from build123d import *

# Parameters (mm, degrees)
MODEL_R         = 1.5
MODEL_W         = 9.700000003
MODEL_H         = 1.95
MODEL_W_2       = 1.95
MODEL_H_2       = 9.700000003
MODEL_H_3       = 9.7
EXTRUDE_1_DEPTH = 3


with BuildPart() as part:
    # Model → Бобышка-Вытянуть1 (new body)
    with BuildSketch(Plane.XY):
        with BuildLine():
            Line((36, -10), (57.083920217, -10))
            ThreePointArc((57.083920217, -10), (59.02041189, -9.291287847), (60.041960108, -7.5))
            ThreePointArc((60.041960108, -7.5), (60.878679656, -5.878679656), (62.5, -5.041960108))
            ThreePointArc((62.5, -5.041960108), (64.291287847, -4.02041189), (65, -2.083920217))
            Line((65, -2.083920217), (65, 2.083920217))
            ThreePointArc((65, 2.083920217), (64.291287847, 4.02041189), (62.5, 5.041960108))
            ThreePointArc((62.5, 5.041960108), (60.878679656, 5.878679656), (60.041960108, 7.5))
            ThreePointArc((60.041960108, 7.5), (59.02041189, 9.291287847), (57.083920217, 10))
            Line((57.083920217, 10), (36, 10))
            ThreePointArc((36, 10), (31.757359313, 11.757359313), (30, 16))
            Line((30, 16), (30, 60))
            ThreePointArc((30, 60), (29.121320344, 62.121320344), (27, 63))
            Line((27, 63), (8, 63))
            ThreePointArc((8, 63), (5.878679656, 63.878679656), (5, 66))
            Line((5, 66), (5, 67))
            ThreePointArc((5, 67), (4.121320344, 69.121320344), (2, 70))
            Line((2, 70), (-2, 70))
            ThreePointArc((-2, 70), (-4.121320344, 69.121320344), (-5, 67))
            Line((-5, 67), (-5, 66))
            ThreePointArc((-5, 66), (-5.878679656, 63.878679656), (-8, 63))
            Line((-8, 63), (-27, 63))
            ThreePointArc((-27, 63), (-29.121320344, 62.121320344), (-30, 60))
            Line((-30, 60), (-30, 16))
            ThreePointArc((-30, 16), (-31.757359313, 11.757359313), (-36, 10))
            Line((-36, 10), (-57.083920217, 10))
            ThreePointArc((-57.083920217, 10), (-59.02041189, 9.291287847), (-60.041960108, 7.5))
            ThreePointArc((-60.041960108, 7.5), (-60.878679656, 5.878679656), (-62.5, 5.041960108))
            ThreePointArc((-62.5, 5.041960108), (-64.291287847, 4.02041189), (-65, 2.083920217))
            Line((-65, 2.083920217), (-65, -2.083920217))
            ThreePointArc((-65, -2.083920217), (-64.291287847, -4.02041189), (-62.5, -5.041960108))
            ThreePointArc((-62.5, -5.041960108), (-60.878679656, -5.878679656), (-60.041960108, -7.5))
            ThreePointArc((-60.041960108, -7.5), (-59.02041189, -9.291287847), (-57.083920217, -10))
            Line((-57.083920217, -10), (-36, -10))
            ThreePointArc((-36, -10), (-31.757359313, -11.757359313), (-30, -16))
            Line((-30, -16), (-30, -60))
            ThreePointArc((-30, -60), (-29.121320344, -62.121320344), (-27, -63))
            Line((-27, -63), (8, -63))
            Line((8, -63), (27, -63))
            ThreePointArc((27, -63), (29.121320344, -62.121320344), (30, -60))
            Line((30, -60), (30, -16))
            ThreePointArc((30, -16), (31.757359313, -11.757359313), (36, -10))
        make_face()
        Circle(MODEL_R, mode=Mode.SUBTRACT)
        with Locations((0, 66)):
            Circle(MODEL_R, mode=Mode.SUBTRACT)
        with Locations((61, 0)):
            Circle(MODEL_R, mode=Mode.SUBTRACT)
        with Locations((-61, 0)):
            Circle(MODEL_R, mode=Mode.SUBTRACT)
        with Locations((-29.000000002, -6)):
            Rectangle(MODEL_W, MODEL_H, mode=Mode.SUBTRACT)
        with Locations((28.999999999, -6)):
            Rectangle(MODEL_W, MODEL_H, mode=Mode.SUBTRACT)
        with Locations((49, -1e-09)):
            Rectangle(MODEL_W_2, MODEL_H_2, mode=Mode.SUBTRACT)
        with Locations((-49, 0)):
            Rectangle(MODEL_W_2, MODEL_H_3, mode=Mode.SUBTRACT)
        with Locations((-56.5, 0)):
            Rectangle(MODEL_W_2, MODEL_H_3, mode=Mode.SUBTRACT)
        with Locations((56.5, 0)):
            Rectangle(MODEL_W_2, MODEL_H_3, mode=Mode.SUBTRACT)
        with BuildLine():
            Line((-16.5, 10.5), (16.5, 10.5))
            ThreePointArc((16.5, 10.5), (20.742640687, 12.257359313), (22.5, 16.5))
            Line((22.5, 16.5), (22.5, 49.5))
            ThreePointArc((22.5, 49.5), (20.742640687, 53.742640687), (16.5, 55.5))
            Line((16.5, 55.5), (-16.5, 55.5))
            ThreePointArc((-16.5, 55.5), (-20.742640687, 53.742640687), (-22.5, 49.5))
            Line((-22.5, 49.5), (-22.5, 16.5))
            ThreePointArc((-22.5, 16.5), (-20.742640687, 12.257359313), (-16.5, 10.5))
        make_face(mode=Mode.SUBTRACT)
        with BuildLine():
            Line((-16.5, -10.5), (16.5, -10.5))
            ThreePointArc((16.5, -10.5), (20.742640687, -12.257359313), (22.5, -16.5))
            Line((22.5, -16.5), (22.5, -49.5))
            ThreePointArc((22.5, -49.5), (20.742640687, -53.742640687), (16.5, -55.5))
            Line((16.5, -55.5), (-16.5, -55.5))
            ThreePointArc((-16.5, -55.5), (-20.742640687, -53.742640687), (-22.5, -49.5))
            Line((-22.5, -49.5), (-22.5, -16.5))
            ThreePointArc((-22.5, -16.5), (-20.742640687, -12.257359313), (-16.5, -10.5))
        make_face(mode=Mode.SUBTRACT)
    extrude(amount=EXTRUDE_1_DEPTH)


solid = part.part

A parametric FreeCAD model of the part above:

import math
import FreeCAD as App
import Part
import Sketcher
Q = App.Units.Quantity

doc = App.newDocument("Part")
body = doc.addObject("PartDesign::Body", "Body")

sketch1 = body.newObject("Sketcher::SketchObject", "Sketch")
sketch1.AttachmentSupport = (doc.getObject("XY_Plane"), [""])
sketch1.MapMode = "FlatFace"
sketch1.addGeometry([
    Part.LineSegment(App.Vector(36, -10, 0), App.Vector(57.1, -10, 0)),
    Part.ArcOfCircle(Part.Circle(App.Vector(57.1, -7, 0), App.Vector(0, 0, 1), 3), math.radians(-90), math.radians(-10)),
    Part.ArcOfCircle(Part.Circle(App.Vector(63, -8, 0), App.Vector(0, 0, 1), 3), math.radians(100), math.radians(170)),
    Part.ArcOfCircle(Part.Circle(App.Vector(62, -2.1, 0), App.Vector(0, 0, 1), 3), math.radians(-80), math.radians(0)),
    Part.LineSegment(App.Vector(65, -2.1, 0), App.Vector(65, 2.1, 0)),
    Part.ArcOfCircle(Part.Circle(App.Vector(62, 2.1, 0), App.Vector(0, 0, 1), 3), math.radians(0), math.radians(80)),
    Part.ArcOfCircle(Part.Circle(App.Vector(63, 8, 0), App.Vector(0, 0, 1), 3), math.radians(-170), math.radians(-100)),
    Part.ArcOfCircle(Part.Circle(App.Vector(57.1, 7, 0), App.Vector(0, 0, 1), 3), math.radians(10), math.radians(90)),
    Part.LineSegment(App.Vector(57.1, 10, 0), App.Vector(36, 10, 0)),
    Part.ArcOfCircle(Part.Circle(App.Vector(36, 16, 0), App.Vector(0, 0, 1), 6), math.radians(180), math.radians(270)),
    Part.LineSegment(App.Vector(30, 16, 0), App.Vector(30, 60, 0)),
    Part.ArcOfCircle(Part.Circle(App.Vector(27, 60, 0), App.Vector(0, 0, 1), 3), math.radians(0), math.radians(90)),
    Part.LineSegment(App.Vector(27, 63, 0), App.Vector(8, 63, 0)),
    Part.ArcOfCircle(Part.Circle(App.Vector(8, 66, 0), App.Vector(0, 0, 1), 3), math.radians(180), math.radians(270)),
    Part.LineSegment(App.Vector(5, 66, 0), App.Vector(5, 67, 0)),
    Part.ArcOfCircle(Part.Circle(App.Vector(2, 67, 0), App.Vector(0, 0, 1), 3), math.radians(0), math.radians(90)),
    Part.LineSegment(App.Vector(2, 70, 0), App.Vector(-2, 70, 0)),
    Part.ArcOfCircle(Part.Circle(App.Vector(-2, 67, 0), App.Vector(0, 0, 1), 3), math.radians(90), math.radians(180)),
    Part.LineSegment(App.Vector(-5, 67, 0), App.Vector(-5, 66, 0)),
    Part.ArcOfCircle(Part.Circle(App.Vector(-8, 66, 0), App.Vector(0, 0, 1), 3), math.radians(-90), math.radians(0)),
    Part.LineSegment(App.Vector(-8, 63, 0), App.Vector(-27, 63, 0)),
    Part.ArcOfCircle(Part.Circle(App.Vector(-27, 60, 0), App.Vector(0, 0, 1), 3), math.radians(90), math.radians(180)),
    Part.LineSegment(App.Vector(-30, 60, 0), App.Vector(-30, 16, 0)),
    Part.ArcOfCircle(Part.Circle(App.Vector(-36, 16, 0), App.Vector(0, 0, 1), 6), math.radians(-90), math.radians(0)),
    Part.LineSegment(App.Vector(-36, 10, 0), App.Vector(-57.1, 10, 0)),
    Part.ArcOfCircle(Part.Circle(App.Vector(-57.1, 7, 0), App.Vector(0, 0, 1), 3), math.radians(90), math.radians(170)),
    Part.ArcOfCircle(Part.Circle(App.Vector(-63, 8, 0), App.Vector(0, 0, 1), 3), math.radians(-80), math.radians(-10)),
    Part.ArcOfCircle(Part.Circle(App.Vector(-62, 2.1, 0), App.Vector(0, 0, 1), 3), math.radians(100), math.radians(180)),
    Part.LineSegment(App.Vector(-65, 2.1, 0), App.Vector(-65, -2.1, 0)),
    Part.ArcOfCircle(Part.Circle(App.Vector(-62, -2.1, 0), App.Vector(0, 0, 1), 3), math.radians(-180), math.radians(-100)),
    Part.ArcOfCircle(Part.Circle(App.Vector(-63, -8, 0), App.Vector(0, 0, 1), 3), math.radians(10), math.radians(80)),
    Part.ArcOfCircle(Part.Circle(App.Vector(-57.1, -7, 0), App.Vector(0, 0, 1), 3), math.radians(-170), math.radians(-90)),
    Part.LineSegment(App.Vector(-57.1, -10, 0), App.Vector(-36, -10, 0)),
    Part.ArcOfCircle(Part.Circle(App.Vector(-36, -16, 0), App.Vector(0, 0, 1), 6), math.radians(0), math.radians(90)),
    Part.LineSegment(App.Vector(-30, -16, 0), App.Vector(-30, -60, 0)),
    Part.ArcOfCircle(Part.Circle(App.Vector(-27, -60, 0), App.Vector(0, 0, 1), 3), math.radians(180), math.radians(270)),
    Part.LineSegment(App.Vector(-27, -63, 0), App.Vector(27, -63, 0)),
    Part.ArcOfCircle(Part.Circle(App.Vector(27, -60, 0), App.Vector(0, 0, 1), 3), math.radians(-90), math.radians(0)),
    Part.LineSegment(App.Vector(30, -60, 0), App.Vector(30, -16, 0)),
    Part.ArcOfCircle(Part.Circle(App.Vector(36, -16, 0), App.Vector(0, 0, 1), 6), math.radians(90), math.radians(180)),
    Part.Circle(App.Vector(-61, 0, 0), App.Vector(0, 0, 1), 1.5),
    Part.LineSegment(App.Vector(-55.5, -4.8, 0), App.Vector(-57.5, -4.8, 0)),
    Part.LineSegment(App.Vector(-57.5, -4.8, 0), App.Vector(-57.5, 4.8, 0)),
    Part.LineSegment(App.Vector(-57.5, 4.8, 0), App.Vector(-55.5, 4.8, 0)),
    Part.LineSegment(App.Vector(-55.5, 4.8, 0), App.Vector(-55.5, -4.8, 0)),
    Part.LineSegment(App.Vector(-48, -4.8, 0), App.Vector(-50, -4.8, 0)),
    Part.LineSegment(App.Vector(-50, -4.8, 0), App.Vector(-50, 4.8, 0)),
    Part.LineSegment(App.Vector(-50, 4.8, 0), App.Vector(-48, 4.8, 0)),
    Part.LineSegment(App.Vector(-48, 4.8, 0), App.Vector(-48, -4.8, 0)),
    Part.LineSegment(App.Vector(-24.2, -7, 0), App.Vector(-33.9, -7, 0)),
    Part.LineSegment(App.Vector(-33.9, -7, 0), App.Vector(-33.9, -5, 0)),
    Part.LineSegment(App.Vector(-33.9, -5, 0), App.Vector(-24.2, -5, 0)),
    Part.LineSegment(App.Vector(-24.2, -5, 0), App.Vector(-24.2, -7, 0)),
    Part.ArcOfCircle(Part.Circle(App.Vector(-16.5, -16.5, 0), App.Vector(0, 0, 1), 6), math.radians(90), math.radians(180)),
    Part.LineSegment(App.Vector(-16.5, -10.5, 0), App.Vector(16.5, -10.5, 0)),
    Part.ArcOfCircle(Part.Circle(App.Vector(16.5, -16.5, 0), App.Vector(0, 0, 1), 6), math.radians(0), math.radians(90)),
    Part.LineSegment(App.Vector(22.5, -16.5, 0), App.Vector(22.5, -49.5, 0)),
    Part.ArcOfCircle(Part.Circle(App.Vector(16.5, -49.5, 0), App.Vector(0, 0, 1), 6), math.radians(-90), math.radians(0)),
    Part.LineSegment(App.Vector(16.5, -55.5, 0), App.Vector(-16.5, -55.5, 0)),
    Part.ArcOfCircle(Part.Circle(App.Vector(-16.5, -49.5, 0), App.Vector(0, 0, 1), 6), math.radians(180), math.radians(270)),
    Part.LineSegment(App.Vector(-22.5, -49.5, 0), App.Vector(-22.5, -16.5, 0)),
    Part.Circle(App.Vector(0, 0, 0), App.Vector(0, 0, 1), 1.5),
    Part.LineSegment(App.Vector(33.9, -7, 0), App.Vector(24.1, -7, 0)),
    Part.LineSegment(App.Vector(24.1, -7, 0), App.Vector(24.1, -5, 0)),
    Part.LineSegment(App.Vector(24.1, -5, 0), App.Vector(33.9, -5, 0)),
    Part.LineSegment(App.Vector(33.9, -5, 0), App.Vector(33.9, -7, 0)),
    Part.LineSegment(App.Vector(50, -4.9, 0), App.Vector(48, -4.9, 0)),
    Part.LineSegment(App.Vector(48, -4.9, 0), App.Vector(48, 4.8, 0)),
    Part.LineSegment(App.Vector(48, 4.8, 0), App.Vector(50, 4.8, 0)),
    Part.LineSegment(App.Vector(50, 4.8, 0), App.Vector(50, -4.9, 0)),
    Part.LineSegment(App.Vector(57.5, -4.8, 0), App.Vector(55.5, -4.8, 0)),
    Part.LineSegment(App.Vector(55.5, -4.8, 0), App.Vector(55.5, 4.8, 0)),
    Part.LineSegment(App.Vector(55.5, 4.8, 0), App.Vector(57.5, 4.8, 0)),
    Part.LineSegment(App.Vector(57.5, 4.8, 0), App.Vector(57.5, -4.8, 0)),
    Part.Circle(App.Vector(61, 0, 0), App.Vector(0, 0, 1), 1.5),
    Part.LineSegment(App.Vector(16.5, 10.5, 0), App.Vector(-16.5, 10.5, 0)),
    Part.ArcOfCircle(Part.Circle(App.Vector(-16.5, 16.5, 0), App.Vector(0, 0, 1), 6), math.radians(180), math.radians(270)),
    Part.LineSegment(App.Vector(-22.5, 16.5, 0), App.Vector(-22.5, 49.5, 0)),
    Part.ArcOfCircle(Part.Circle(App.Vector(-16.5, 49.5, 0), App.Vector(0, 0, 1), 6), math.radians(90), math.radians(180)),
    Part.LineSegment(App.Vector(-16.5, 55.5, 0), App.Vector(16.5, 55.5, 0)),
    Part.ArcOfCircle(Part.Circle(App.Vector(16.5, 49.5, 0), App.Vector(0, 0, 1), 6), math.radians(0), math.radians(90)),
    Part.LineSegment(App.Vector(22.5, 49.5, 0), App.Vector(22.5, 16.5, 0)),
    Part.ArcOfCircle(Part.Circle(App.Vector(16.5, 16.5, 0), App.Vector(0, 0, 1), 6), math.radians(-90), math.radians(0)),
    Part.Circle(App.Vector(0, 66, 0), App.Vector(0, 0, 1), 1.5),
], False)
sketch1.addConstraint([
    Sketcher.Constraint("Tangent", 0, 2, 1, 1),
    Sketcher.Constraint("Tangent", 1, 2, 2, 2),
    Sketcher.Constraint("Tangent", 2, 1, 3, 1),
    Sketcher.Constraint("Tangent", 3, 2, 4, 1),
    Sketcher.Constraint("Tangent", 4, 2, 5, 1),
    Sketcher.Constraint("Tangent", 5, 2, 6, 2),
    Sketcher.Constraint("Tangent", 6, 1, 7, 1),
    Sketcher.Constraint("Tangent", 7, 2, 8, 1),
    Sketcher.Constraint("Tangent", 8, 2, 9, 2),
    Sketcher.Constraint("Tangent", 9, 1, 10, 1),
    Sketcher.Constraint("Tangent", 10, 2, 11, 1),
    Sketcher.Constraint("Tangent", 11, 2, 12, 1),
    Sketcher.Constraint("Tangent", 12, 2, 13, 2),
    Sketcher.Constraint("Tangent", 13, 1, 14, 1),
    Sketcher.Constraint("Tangent", 14, 2, 15, 1),
    Sketcher.Constraint("Tangent", 15, 2, 16, 1),
    Sketcher.Constraint("Tangent", 16, 2, 17, 1),
    Sketcher.Constraint("Tangent", 17, 2, 18, 1),
    Sketcher.Constraint("Tangent", 18, 2, 19, 2),
    Sketcher.Constraint("Tangent", 19, 1, 20, 1),
    Sketcher.Constraint("Tangent", 20, 2, 21, 1),
    Sketcher.Constraint("Tangent", 21, 2, 22, 1),
    Sketcher.Constraint("Tangent", 22, 2, 23, 2),
    Sketcher.Constraint("Tangent", 23, 1, 24, 1),
    Sketcher.Constraint("Tangent", 24, 2, 25, 1),
    Sketcher.Constraint("Tangent", 25, 2, 26, 2),
    Sketcher.Constraint("Tangent", 26, 1, 27, 1),
    Sketcher.Constraint("Tangent", 27, 2, 28, 1),
    Sketcher.Constraint("Tangent", 28, 2, 29, 1),
    Sketcher.Constraint("Tangent", 29, 2, 30, 2),
    Sketcher.Constraint("Tangent", 30, 1, 31, 1),
    Sketcher.Constraint("Tangent", 31, 2, 32, 1),
    Sketcher.Constraint("Tangent", 32, 2, 33, 2),
    Sketcher.Constraint("Tangent", 33, 1, 34, 1),
    Sketcher.Constraint("Tangent", 34, 2, 35, 1),
    Sketcher.Constraint("Tangent", 35, 2, 36, 1),
    Sketcher.Constraint("Tangent", 36, 2, 37, 1),
    Sketcher.Constraint("Tangent", 37, 2, 38, 1),
    Sketcher.Constraint("Tangent", 38, 2, 39, 2),
    Sketcher.Constraint("Tangent", 39, 1, 0, 1),
    Sketcher.Constraint("Coincident", 41, 2, 42, 1),
    Sketcher.Constraint("Coincident", 42, 2, 43, 1),
    Sketcher.Constraint("Coincident", 43, 2, 44, 1),
    Sketcher.Constraint("Coincident", 44, 2, 41, 1),
    Sketcher.Constraint("Coincident", 45, 2, 46, 1),
    Sketcher.Constraint("Coincident", 46, 2, 47, 1),
    Sketcher.Constraint("Coincident", 47, 2, 48, 1),
    Sketcher.Constraint("Coincident", 48, 2, 45, 1),
    Sketcher.Constraint("Coincident", 49, 2, 50, 1),
    Sketcher.Constraint("Coincident", 50, 2, 51, 1),
    Sketcher.Constraint("Coincident", 51, 2, 52, 1),
    Sketcher.Constraint("Coincident", 52, 2, 49, 1),
    Sketcher.Constraint("Tangent", 53, 1, 54, 1),
    Sketcher.Constraint("Tangent", 54, 2, 55, 2),
    Sketcher.Constraint("Tangent", 55, 1, 56, 1),
    Sketcher.Constraint("Tangent", 56, 2, 57, 2),
    Sketcher.Constraint("Tangent", 57, 1, 58, 1),
    Sketcher.Constraint("Tangent", 58, 2, 59, 2),
    Sketcher.Constraint("Tangent", 59, 1, 60, 1),
    Sketcher.Constraint("Tangent", 60, 2, 53, 2),
    Sketcher.Constraint("Coincident", 62, 2, 63, 1),
    Sketcher.Constraint("Coincident", 63, 2, 64, 1),
    Sketcher.Constraint("Coincident", 64, 2, 65, 1),
    Sketcher.Constraint("Coincident", 65, 2, 62, 1),
    Sketcher.Constraint("Coincident", 66, 2, 67, 1),
    Sketcher.Constraint("Coincident", 67, 2, 68, 1),
    Sketcher.Constraint("Coincident", 68, 2, 69, 1),
    Sketcher.Constraint("Coincident", 69, 2, 66, 1),
    Sketcher.Constraint("Coincident", 70, 2, 71, 1),
    Sketcher.Constraint("Coincident", 71, 2, 72, 1),
    Sketcher.Constraint("Coincident", 72, 2, 73, 1),
    Sketcher.Constraint("Coincident", 73, 2, 70, 1),
    Sketcher.Constraint("Tangent", 75, 2, 76, 2),
    Sketcher.Constraint("Tangent", 76, 1, 77, 1),
    Sketcher.Constraint("Tangent", 77, 2, 78, 2),
    Sketcher.Constraint("Tangent", 78, 1, 79, 1),
    Sketcher.Constraint("Tangent", 79, 2, 80, 2),
    Sketcher.Constraint("Tangent", 80, 1, 81, 1),
    Sketcher.Constraint("Tangent", 81, 2, 82, 2),
    Sketcher.Constraint("Tangent", 82, 1, 75, 1),
    Sketcher.Constraint("Horizontal", 0),
    Sketcher.Constraint("Vertical", 4),
    Sketcher.Constraint("Horizontal", 8),
    Sketcher.Constraint("Vertical", 10),
    Sketcher.Constraint("Horizontal", 12),
    Sketcher.Constraint("Vertical", 14),
    Sketcher.Constraint("Horizontal", 16),
    Sketcher.Constraint("Vertical", 18),
    Sketcher.Constraint("Horizontal", 20),
    Sketcher.Constraint("Vertical", 22),
    Sketcher.Constraint("Horizontal", 24),
    Sketcher.Constraint("Vertical", 28),
    Sketcher.Constraint("Horizontal", 32),
    Sketcher.Constraint("Vertical", 34),
    Sketcher.Constraint("Horizontal", 36),
    Sketcher.Constraint("Vertical", 38),
    Sketcher.Constraint("Horizontal", 41),
    Sketcher.Constraint("Vertical", 42),
    Sketcher.Constraint("Horizontal", 43),
    Sketcher.Constraint("Vertical", 44),
    Sketcher.Constraint("Horizontal", 45),
    Sketcher.Constraint("Vertical", 46),
    Sketcher.Constraint("Horizontal", 47),
    Sketcher.Constraint("Vertical", 48),
    Sketcher.Constraint("Horizontal", 49),
    Sketcher.Constraint("Vertical", 50),
    Sketcher.Constraint("Horizontal", 51),
    Sketcher.Constraint("Vertical", 52),
    Sketcher.Constraint("Horizontal", 54),
    Sketcher.Constraint("Vertical", 56),
    Sketcher.Constraint("Horizontal", 58),
    Sketcher.Constraint("Vertical", 60),
    Sketcher.Constraint("Horizontal", 62),
    Sketcher.Constraint("Vertical", 63),
    Sketcher.Constraint("Horizontal", 64),
    Sketcher.Constraint("Vertical", 65),
    Sketcher.Constraint("Horizontal", 66),
    Sketcher.Constraint("Vertical", 67),
    Sketcher.Constraint("Horizontal", 68),
    Sketcher.Constraint("Vertical", 69),
    Sketcher.Constraint("Horizontal", 70),
    Sketcher.Constraint("Vertical", 71),
    Sketcher.Constraint("Horizontal", 72),
    Sketcher.Constraint("Vertical", 73),
    Sketcher.Constraint("Horizontal", 75),
    Sketcher.Constraint("Vertical", 77),
    Sketcher.Constraint("Horizontal", 79),
    Sketcher.Constraint("Vertical", 81),
    Sketcher.Constraint("Coincident", 61, 3, -1, 1),
    Sketcher.Constraint("Equal", 1, 2),
    Sketcher.Constraint("Equal", 2, 3),
    Sketcher.Constraint("Equal", 3, 5),
    Sketcher.Constraint("Equal", 5, 6),
    Sketcher.Constraint("Equal", 6, 7),
    Sketcher.Constraint("Equal", 7, 11),
    Sketcher.Constraint("Equal", 11, 13),
    Sketcher.Constraint("Equal", 13, 15),
    Sketcher.Constraint("Equal", 15, 17),
    Sketcher.Constraint("Equal", 17, 19),
    Sketcher.Constraint("Equal", 19, 21),
    Sketcher.Constraint("Equal", 9, 23),
    Sketcher.Constraint("Equal", 21, 25),
    Sketcher.Constraint("Equal", 25, 26),
    Sketcher.Constraint("Equal", 26, 27),
    Sketcher.Constraint("Equal", 27, 29),
    Sketcher.Constraint("Equal", 29, 30),
    Sketcher.Constraint("Equal", 30, 31),
    Sketcher.Constraint("Equal", 23, 33),
    Sketcher.Constraint("Equal", 31, 35),
    Sketcher.Constraint("Equal", 35, 37),
    Sketcher.Constraint("Equal", 33, 39),
    Sketcher.Constraint("Equal", 39, 53),
    Sketcher.Constraint("Equal", 53, 55),
    Sketcher.Constraint("Equal", 55, 57),
    Sketcher.Constraint("Equal", 57, 59),
    Sketcher.Constraint("Equal", 40, 61),
    Sketcher.Constraint("Equal", 61, 74),
    Sketcher.Constraint("Equal", 59, 76),
    Sketcher.Constraint("Equal", 76, 78),
    Sketcher.Constraint("Equal", 78, 80),
    Sketcher.Constraint("Equal", 80, 82),
    Sketcher.Constraint("Equal", 74, 83),
    Sketcher.Constraint("Symmetric", 1, 3, 25, 3, -1, 1),
    Sketcher.Constraint("Symmetric", 3, 3, 27, 3, -1, 1),
    Sketcher.Constraint("Symmetric", 6, 3, 30, 3, -1, 1),
    Sketcher.Constraint("Symmetric", 9, 3, 33, 3, -1, 1),
    Sketcher.Constraint("Symmetric", 21, 3, 37, 3, -1, 1),
    Sketcher.Constraint("Symmetric", 40, 3, 74, 3, -1, 1),
    Sketcher.Constraint("Symmetric", 55, 3, 76, 3, -1, 1),
    Sketcher.Constraint("Symmetric", 59, 3, 80, 3, -1, 1),
    Sketcher.Constraint("Symmetric", 47, 2, 66, 2, -1, 1),
    Sketcher.Constraint("Symmetric", 45, 2, 68, 2, -1, 1),
    Sketcher.Constraint("Symmetric", 43, 2, 70, 2, -1, 1),
    Sketcher.Constraint("Symmetric", 41, 2, 72, 2, -1, 1),
    Sketcher.Constraint("Symmetric", 13, 3, 19, 3, -2),
    Sketcher.Constraint("Symmetric", 9, 3, 23, 3, -2),
    Sketcher.Constraint("Symmetric", 6, 3, 26, 3, -2),
    Sketcher.Constraint("Symmetric", 52, 2, 62, 2, -2),
    Sketcher.Constraint("Symmetric", 50, 2, 64, 2, -2),
    Sketcher.Constraint("PointOnObject", 40, 3, -1),
    Sketcher.Constraint("PointOnObject", 83, 3, -2),
    Sketcher.Constraint("Horizontal", 19, 3, 83, 3),
    Sketcher.Constraint("Horizontal", 44, 2, 45, 2),
    Sketcher.Constraint("Horizontal", 43, 2, 46, 2),
    Sketcher.Constraint("Horizontal", 48, 2, 66, 2),
    Sketcher.Constraint("Vertical", 59, 3, 76, 3),
    Sketcher.Constraint("Equal", 43, 45),
    Sketcher.Constraint("Equal", 64, 42),
    Sketcher.Constraint("Equal", 72, 50),
    Sketcher.Constraint("Equal", 79, 56),
    Sketcher.Constraint("Diameter", 40, Q("3 mm")),
    Sketcher.Constraint("Radius", 1, Q("3 mm")),
    Sketcher.Constraint("Radius", 9, Q("6 mm")),
    Sketcher.Constraint("DistanceX", 12, 2, 12, 1, Q("19 mm")),
    Sketcher.Constraint("DistanceX", 16, 2, 16, 1, Q("4 mm")),
    Sketcher.Constraint("DistanceX", 54, 1, 54, 2, Q("33 mm")),
    Sketcher.Constraint("DistanceY", 10, 1, 10, 2, Q("44 mm")),
    Sketcher.Constraint("DistanceY", 14, 1, 14, 2, Q("1 mm")),
    Sketcher.Constraint("DistanceX", 49, 2, 49, 1, Q("9.7 mm")),
    Sketcher.Constraint("DistanceY", 1, 3, -1, 1, Q("7 mm")),
    Sketcher.Constraint("DistanceX", -1, 1, 2, 3, Q("63 mm")),
    Sketcher.Constraint("DistanceY", 2, 3, -1, 1, Q("8 mm")),
    Sketcher.Constraint("DistanceX", -1, 1, 3, 3, Q("62 mm")),
    Sketcher.Constraint("DistanceX", 40, 3, -1, 1, Q("61 mm")),
    Sketcher.Constraint("DistanceX", 41, 2, 41, 1, Q("1.95 mm")),
    Sketcher.Constraint("DistanceY", 53, 3, -1, 1, Q("16.5 mm")),
    Sketcher.Constraint("DistanceX", 49, 2, -1, 1, Q("33.85 mm")),
    Sketcher.Constraint("DistanceX", 41, 2, -1, 1, Q("57.475 mm")),
    Sketcher.Constraint("DistanceX", 45, 2, -1, 1, Q("49.975 mm")),
    Sketcher.Constraint("DistanceY", 49, 2, -1, 1, Q("6.975 mm")),
])
pad1 = body.newObject("PartDesign::Pad", "Pad")
pad1.Profile = sketch1
pad1.Length = 3

doc.recompute()
